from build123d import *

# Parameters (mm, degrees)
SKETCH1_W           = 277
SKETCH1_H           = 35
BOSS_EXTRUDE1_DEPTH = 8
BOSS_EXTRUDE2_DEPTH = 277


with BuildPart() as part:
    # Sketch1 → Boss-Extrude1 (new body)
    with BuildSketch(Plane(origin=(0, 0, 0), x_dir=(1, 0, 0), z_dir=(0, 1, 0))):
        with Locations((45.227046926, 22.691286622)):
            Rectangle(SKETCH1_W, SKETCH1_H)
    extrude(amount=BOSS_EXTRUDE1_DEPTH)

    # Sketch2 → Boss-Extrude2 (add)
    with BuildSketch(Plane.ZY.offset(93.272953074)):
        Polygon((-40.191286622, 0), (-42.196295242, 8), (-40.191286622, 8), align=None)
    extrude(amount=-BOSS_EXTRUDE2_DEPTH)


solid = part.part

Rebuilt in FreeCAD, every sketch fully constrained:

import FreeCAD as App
import Part
import Sketcher

V = App.Vector
Q = App.Units.Quantity

doc = App.newDocument("Part")
body = doc.addObject("PartDesign::Body", "Body")

sketch1 = doc.addObject("Sketcher::SketchObject", "Sketch")
body.addObject(sketch1)
sketch1.AttachmentSupport = (doc.XZ_Plane, [""])
sketch1.MapMode = "FlatFace"
sketch1.addGeometry([
    Part.LineSegment(V(-93, -40, 0), V(-93, -5, 0)),
    Part.LineSegment(V(-93, -5, 0), V(184, -5, 0)),
    Part.LineSegment(V(184, -5, 0), V(184, -40, 0)),
    Part.LineSegment(V(184, -40, 0), V(-93, -40, 0)),
], False)
sketch1.addConstraint([
    Sketcher.Constraint("Coincident", 0, 2, 1, 1),
    Sketcher.Constraint("Coincident", 1, 2, 2, 1),
    Sketcher.Constraint("Coincident", 2, 2, 3, 1),
    Sketcher.Constraint("Coincident", 3, 2, 0, 1),
    Sketcher.Constraint("Vertical", 0),
    Sketcher.Constraint("Horizontal", 1),
    Sketcher.Constraint("Vertical", 2),
    Sketcher.Constraint("Horizontal", 3),
    Sketcher.Constraint("DistanceX", 1, 1, 1, 2, Q("277 mm")),
    Sketcher.Constraint("DistanceY", 0, 1, 0, 2, Q("35 mm")),
    Sketcher.Constraint("DistanceX", 0, 2, -1, 1, Q("93.272953 mm")),
    Sketcher.Constraint("DistanceY", 0, 2, -1, 1, Q("5.191287 mm")),
])
pad1 = doc.addObject("PartDesign::Pad", "Pad")
body.addObject(pad1)
pad1.Profile = sketch1
pad1.Length = 8
pad1.Reversed = True

sketch2 = doc.addObject("Sketcher::SketchObject", "Sketch001")
body.addObject(sketch2)
sketch2.AttachmentSupport = (doc.YZ_Plane, [""])
sketch2.MapMode = "FlatFace"
sketch2.AttachmentOffset = App.Placement(V(0, 0, -93.272953), App.Rotation())
sketch2.addGeometry([
    Part.LineSegment(V(8, -42.2, 0), V(0, -40.2, 0)),
    Part.LineSegment(V(0, -40.2, 0), V(8, -40.2, 0)),
    Part.LineSegment(V(8, -40.2, 0), V(8, -42.2, 0)),
], False)
sketch2.addConstraint([
    Sketcher.Constraint("Coincident", 0, 2, 1, 1),
    Sketcher.Constraint("Coincident", 1, 2, 2, 1),
    Sketcher.Constraint("Coincident", 2, 2, 0, 1),
    Sketcher.Constraint("Horizontal", 1),
    Sketcher.Constraint("Vertical", 2),
    Sketcher.Constraint("PointOnObject", 0, 2, -2),
    Sketcher.Constraint("DistanceX", 1, 1, 1, 2, Q("8 mm")),
    Sketcher.Constraint("Angle", 0, Q("165.93 deg")),
    Sketcher.Constraint("DistanceY", 0, 2, -1, 1, Q("40.191287 mm")),
])
pad2 = doc.addObject("PartDesign::Pad", "Pad001")
body.addObject(pad2)
pad2.Profile = sketch2
pad2.Length = 277

doc.recompute()
